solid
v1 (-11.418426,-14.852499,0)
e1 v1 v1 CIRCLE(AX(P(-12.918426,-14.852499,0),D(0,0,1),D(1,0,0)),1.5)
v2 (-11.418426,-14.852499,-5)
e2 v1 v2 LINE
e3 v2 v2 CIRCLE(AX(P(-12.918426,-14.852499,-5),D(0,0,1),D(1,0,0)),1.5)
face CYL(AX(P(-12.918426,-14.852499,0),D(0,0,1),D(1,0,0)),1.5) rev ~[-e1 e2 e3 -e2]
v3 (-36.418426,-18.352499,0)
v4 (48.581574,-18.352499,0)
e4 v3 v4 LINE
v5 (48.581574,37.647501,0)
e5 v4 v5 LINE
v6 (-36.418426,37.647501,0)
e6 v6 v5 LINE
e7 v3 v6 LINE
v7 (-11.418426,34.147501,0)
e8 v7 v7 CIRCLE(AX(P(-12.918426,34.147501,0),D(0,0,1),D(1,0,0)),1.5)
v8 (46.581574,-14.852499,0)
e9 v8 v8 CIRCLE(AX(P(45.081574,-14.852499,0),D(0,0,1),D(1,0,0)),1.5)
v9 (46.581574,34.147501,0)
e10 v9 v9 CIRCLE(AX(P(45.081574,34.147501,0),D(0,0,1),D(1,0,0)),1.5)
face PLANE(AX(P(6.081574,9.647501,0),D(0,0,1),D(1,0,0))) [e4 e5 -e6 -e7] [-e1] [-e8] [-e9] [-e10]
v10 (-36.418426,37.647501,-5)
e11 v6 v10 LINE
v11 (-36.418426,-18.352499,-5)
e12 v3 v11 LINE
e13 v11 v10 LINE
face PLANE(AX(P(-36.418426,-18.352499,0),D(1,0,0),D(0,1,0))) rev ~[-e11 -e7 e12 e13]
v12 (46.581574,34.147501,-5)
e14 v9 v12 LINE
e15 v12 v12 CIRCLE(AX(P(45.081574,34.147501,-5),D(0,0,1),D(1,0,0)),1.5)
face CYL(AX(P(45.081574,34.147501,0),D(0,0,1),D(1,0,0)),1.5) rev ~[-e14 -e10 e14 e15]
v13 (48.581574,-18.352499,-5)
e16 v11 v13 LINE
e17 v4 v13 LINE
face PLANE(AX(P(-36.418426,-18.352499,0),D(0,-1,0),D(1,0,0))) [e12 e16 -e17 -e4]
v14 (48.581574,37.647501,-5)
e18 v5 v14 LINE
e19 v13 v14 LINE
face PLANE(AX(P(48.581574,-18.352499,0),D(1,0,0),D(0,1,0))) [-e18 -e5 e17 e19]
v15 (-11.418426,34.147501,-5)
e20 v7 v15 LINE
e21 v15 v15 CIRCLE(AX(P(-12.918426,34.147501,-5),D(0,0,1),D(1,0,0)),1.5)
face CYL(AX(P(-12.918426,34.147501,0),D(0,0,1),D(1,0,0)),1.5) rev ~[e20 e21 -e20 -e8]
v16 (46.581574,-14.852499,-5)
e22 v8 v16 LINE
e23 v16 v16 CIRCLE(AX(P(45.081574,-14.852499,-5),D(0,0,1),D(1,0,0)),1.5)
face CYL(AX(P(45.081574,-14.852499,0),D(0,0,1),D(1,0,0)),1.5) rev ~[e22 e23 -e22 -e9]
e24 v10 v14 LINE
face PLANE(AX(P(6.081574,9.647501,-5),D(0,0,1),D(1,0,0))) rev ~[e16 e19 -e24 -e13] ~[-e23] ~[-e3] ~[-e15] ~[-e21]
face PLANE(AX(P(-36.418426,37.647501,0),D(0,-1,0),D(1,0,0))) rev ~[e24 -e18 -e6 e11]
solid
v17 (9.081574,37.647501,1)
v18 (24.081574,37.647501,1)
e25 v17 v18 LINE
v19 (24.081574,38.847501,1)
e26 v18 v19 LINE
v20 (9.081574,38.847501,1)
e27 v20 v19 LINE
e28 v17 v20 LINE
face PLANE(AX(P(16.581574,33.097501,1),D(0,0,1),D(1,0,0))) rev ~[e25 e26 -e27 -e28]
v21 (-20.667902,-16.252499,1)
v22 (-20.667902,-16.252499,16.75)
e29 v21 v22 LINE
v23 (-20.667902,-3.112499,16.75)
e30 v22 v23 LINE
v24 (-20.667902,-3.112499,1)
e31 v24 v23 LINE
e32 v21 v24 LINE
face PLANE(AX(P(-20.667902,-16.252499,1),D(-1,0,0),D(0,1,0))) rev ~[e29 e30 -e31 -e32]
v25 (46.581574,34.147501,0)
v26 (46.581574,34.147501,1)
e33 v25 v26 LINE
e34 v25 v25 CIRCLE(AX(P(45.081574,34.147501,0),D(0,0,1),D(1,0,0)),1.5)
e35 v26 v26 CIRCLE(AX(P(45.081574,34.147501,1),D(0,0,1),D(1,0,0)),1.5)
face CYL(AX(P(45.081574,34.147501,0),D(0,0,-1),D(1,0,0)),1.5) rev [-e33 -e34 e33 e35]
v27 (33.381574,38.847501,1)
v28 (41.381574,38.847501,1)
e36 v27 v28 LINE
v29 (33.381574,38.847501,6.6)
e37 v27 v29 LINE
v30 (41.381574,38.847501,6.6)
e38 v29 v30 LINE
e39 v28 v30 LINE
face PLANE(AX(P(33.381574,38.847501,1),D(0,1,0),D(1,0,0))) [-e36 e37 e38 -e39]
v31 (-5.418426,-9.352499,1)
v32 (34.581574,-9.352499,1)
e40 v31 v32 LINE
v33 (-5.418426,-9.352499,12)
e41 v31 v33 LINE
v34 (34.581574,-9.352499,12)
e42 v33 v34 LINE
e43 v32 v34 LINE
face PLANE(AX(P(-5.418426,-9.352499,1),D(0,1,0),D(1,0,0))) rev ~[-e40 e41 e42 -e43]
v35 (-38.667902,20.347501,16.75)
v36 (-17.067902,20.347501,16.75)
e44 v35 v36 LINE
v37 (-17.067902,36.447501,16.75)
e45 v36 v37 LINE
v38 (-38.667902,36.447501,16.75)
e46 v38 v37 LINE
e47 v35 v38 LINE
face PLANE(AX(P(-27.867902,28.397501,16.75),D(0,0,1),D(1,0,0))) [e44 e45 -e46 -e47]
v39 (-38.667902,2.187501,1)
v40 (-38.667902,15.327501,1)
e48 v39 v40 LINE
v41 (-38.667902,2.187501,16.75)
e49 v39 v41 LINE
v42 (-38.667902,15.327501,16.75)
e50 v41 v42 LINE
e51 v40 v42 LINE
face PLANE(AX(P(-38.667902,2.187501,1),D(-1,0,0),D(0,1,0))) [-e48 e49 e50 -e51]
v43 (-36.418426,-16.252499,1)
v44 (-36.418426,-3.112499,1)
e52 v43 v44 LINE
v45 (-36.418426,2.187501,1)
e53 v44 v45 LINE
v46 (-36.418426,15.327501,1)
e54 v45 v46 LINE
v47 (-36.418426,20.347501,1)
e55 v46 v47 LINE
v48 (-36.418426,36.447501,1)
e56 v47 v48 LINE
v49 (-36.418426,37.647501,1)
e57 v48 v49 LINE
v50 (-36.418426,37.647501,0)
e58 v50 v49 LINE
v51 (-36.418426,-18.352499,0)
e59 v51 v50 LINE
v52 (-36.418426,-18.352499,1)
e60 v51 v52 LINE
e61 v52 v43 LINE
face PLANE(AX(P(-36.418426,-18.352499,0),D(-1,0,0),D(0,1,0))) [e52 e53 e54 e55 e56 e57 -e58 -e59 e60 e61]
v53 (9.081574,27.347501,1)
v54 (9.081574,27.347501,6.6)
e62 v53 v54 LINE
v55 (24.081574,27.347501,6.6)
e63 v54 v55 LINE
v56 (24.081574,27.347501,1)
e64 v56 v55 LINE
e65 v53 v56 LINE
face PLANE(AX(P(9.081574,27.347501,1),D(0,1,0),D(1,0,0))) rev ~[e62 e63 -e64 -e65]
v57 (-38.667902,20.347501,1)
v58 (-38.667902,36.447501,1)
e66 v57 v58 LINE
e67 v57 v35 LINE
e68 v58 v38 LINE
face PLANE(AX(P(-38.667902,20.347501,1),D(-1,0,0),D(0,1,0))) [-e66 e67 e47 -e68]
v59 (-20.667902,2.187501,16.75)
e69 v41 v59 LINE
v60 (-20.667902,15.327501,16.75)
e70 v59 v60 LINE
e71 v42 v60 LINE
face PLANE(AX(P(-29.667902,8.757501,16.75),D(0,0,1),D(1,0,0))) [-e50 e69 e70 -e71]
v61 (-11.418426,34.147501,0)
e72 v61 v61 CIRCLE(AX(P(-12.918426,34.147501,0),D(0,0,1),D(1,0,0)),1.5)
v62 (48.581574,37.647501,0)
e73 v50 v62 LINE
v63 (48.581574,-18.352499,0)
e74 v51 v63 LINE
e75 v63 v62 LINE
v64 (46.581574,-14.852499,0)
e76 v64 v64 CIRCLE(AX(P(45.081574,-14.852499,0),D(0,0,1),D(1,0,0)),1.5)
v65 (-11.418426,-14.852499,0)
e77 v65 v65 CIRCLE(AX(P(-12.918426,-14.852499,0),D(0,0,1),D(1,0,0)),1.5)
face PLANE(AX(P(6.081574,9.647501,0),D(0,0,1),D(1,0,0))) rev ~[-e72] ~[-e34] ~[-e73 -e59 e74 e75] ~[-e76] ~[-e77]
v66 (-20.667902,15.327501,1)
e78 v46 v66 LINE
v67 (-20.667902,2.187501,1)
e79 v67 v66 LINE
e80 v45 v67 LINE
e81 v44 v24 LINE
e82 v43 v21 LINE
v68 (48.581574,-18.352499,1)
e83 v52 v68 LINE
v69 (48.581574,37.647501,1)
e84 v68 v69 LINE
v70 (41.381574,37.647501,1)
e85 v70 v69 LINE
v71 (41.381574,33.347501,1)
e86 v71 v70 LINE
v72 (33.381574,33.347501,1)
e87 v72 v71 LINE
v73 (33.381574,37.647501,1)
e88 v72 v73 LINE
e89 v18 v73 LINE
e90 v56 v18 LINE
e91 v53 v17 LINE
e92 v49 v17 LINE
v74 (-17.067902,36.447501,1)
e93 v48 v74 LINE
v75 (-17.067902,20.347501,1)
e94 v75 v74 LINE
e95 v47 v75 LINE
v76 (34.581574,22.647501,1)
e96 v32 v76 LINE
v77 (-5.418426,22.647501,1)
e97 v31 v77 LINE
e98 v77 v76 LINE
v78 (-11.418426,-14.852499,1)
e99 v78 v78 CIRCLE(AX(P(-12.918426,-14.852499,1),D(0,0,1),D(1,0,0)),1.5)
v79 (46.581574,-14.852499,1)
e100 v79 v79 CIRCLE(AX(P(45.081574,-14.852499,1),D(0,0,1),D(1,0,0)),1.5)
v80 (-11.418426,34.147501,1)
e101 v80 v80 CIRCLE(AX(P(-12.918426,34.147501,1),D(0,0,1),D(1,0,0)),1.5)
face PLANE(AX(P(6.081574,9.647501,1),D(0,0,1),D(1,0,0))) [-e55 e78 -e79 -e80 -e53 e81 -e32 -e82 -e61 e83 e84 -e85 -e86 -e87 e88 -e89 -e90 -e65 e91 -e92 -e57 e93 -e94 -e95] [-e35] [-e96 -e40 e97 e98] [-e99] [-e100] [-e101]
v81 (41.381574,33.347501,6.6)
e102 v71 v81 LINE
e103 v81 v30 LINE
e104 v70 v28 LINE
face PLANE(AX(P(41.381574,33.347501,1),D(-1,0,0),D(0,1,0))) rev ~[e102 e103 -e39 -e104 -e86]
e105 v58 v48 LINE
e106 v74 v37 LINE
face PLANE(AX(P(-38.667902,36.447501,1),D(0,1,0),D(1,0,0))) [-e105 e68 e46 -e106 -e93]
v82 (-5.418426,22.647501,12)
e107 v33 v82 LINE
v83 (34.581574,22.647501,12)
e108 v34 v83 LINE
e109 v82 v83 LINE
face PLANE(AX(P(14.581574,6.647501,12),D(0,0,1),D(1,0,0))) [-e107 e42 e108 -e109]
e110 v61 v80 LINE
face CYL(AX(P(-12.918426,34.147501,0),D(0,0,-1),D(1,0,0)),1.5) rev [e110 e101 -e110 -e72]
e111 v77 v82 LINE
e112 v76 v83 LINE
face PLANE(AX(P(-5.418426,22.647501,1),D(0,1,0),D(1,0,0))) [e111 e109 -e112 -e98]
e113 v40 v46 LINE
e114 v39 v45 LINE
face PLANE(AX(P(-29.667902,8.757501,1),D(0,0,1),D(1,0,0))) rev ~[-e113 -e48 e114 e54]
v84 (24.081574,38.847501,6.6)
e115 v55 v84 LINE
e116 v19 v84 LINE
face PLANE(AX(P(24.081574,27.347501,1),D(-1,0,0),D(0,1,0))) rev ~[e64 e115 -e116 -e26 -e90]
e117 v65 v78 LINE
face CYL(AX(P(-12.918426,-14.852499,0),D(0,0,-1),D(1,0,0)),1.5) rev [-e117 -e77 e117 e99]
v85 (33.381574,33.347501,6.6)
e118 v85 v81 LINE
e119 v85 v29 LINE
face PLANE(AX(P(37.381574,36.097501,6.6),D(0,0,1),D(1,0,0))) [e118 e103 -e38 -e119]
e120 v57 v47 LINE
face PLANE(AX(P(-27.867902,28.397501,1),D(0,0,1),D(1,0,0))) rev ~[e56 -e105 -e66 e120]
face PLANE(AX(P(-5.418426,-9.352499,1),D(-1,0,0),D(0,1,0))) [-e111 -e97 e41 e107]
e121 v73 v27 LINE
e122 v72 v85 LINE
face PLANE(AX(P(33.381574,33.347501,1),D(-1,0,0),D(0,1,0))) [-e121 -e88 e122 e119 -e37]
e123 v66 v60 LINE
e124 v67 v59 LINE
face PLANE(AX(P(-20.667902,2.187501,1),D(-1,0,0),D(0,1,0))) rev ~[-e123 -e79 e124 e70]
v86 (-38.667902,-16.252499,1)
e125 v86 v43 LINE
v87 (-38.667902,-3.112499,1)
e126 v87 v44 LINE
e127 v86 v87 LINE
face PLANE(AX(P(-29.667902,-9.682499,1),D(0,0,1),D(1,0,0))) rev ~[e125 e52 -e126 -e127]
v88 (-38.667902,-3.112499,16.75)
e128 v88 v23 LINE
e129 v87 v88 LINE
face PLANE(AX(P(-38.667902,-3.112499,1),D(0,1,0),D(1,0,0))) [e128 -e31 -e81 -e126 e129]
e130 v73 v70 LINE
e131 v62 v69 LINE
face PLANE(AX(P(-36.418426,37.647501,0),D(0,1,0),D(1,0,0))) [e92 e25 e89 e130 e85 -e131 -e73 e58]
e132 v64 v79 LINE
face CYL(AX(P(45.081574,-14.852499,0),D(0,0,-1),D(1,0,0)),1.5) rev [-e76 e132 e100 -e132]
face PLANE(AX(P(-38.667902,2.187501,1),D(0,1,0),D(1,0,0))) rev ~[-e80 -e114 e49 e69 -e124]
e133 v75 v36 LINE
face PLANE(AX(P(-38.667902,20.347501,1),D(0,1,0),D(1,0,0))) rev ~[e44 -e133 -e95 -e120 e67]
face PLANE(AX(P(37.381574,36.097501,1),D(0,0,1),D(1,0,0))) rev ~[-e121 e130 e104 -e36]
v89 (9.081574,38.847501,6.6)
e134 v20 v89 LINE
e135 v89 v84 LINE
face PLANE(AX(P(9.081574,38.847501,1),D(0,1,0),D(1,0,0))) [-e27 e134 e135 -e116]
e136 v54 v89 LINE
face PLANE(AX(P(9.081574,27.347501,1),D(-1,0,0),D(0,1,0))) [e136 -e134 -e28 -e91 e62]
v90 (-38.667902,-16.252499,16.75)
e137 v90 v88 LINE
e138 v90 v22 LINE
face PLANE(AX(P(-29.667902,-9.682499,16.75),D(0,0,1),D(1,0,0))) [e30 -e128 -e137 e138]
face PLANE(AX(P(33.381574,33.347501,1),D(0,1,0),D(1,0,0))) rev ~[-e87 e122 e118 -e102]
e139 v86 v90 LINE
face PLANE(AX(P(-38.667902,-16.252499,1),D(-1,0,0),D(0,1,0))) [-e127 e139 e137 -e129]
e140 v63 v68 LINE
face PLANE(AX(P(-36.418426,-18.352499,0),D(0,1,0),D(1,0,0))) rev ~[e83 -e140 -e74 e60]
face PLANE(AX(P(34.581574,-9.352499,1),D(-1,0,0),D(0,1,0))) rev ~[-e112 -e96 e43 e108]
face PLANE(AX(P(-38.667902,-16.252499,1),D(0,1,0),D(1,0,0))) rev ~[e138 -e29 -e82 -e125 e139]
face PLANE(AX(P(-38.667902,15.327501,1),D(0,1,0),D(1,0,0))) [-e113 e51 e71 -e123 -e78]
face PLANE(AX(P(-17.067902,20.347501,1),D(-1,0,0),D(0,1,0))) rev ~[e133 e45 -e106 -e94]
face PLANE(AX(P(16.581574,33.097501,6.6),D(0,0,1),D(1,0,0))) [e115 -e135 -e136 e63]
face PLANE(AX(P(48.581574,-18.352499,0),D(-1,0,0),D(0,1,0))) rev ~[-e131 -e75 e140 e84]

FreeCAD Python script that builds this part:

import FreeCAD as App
import Part
import Sketcher
from FreeCAD import Vector

doc = App.newDocument("Part")
body = doc.addObject("PartDesign::Body", "Body")

sketch1 = doc.addObject("Sketcher::SketchObject", "Sketch")
body.addObject(sketch1)
sketch1.AttachmentSupport = (doc.XY_Plane, [""])
sketch1.MapMode = "FlatFace"
sketch1.addGeometry([
    Part.LineSegment(Vector(-36.4, 37.6, 0), Vector(-36.4, -18.4, 0)),
    Part.LineSegment(Vector(-36.4, -18.4, 0), Vector(48.6, -18.4, 0)),
    Part.LineSegment(Vector(48.6, -18.4, 0), Vector(48.6, 37.6, 0)),
    Part.LineSegment(Vector(48.6, 37.6, 0), Vector(-36.4, 37.6, 0)),
    Part.Circle(Vector(-12.9, -14.9, 0), Vector(0, 0, 1), 1.5),
    Part.Circle(Vector(45.1, -14.9, 0), Vector(0, 0, 1), 1.5),
    Part.Circle(Vector(-12.9, 34.1, 0), Vector(0, 0, 1), 1.5),
    Part.Circle(Vector(45.1, 34.1, 0), Vector(0, 0, 1), 1.5),
], False)
sketch1.addConstraint([
    Sketcher.Constraint("Coincident", 0, 2, 1, 1),
    Sketcher.Constraint("Coincident", 1, 2, 2, 1),
    Sketcher.Constraint("Coincident", 2, 2, 3, 1),
    Sketcher.Constraint("Coincident", 3, 2, 0, 1),
    Sketcher.Constraint("Vertical", 0),
    Sketcher.Constraint("Horizontal", 1),
    Sketcher.Constraint("Vertical", 2),
    Sketcher.Constraint("Horizontal", 3),
    Sketcher.Constraint("Equal", 4, 5),
    Sketcher.Constraint("Equal", 5, 6),
    Sketcher.Constraint("Equal", 6, 7),
    Sketcher.Constraint("Horizontal", 4, 3, 5, 3),
    Sketcher.Constraint("Horizontal", 6, 3, 7, 3),
    Sketcher.Constraint("Vertical", 4, 3, 6, 3),
    Sketcher.Constraint("Vertical", 5, 3, 7, 3),
    Sketcher.Constraint("Diameter", 4, 3.0),
    Sketcher.Constraint("DistanceX", 1, 1, 1, 2, 85.0),
    Sketcher.Constraint("DistanceY", 0, 2, 0, 1, 56.0),
    Sketcher.Constraint("DistanceX", 4, 3, 5, 3, 58.0),
    Sketcher.Constraint("DistanceY", 4, 3, 6, 3, 49.0),
    Sketcher.Constraint("DistanceX", 0, 2, 4, 3, 23.5),
    Sketcher.Constraint("DistanceY", 0, 2, 4, 3, 3.5),
    Sketcher.Constraint("DistanceY", 4, 3, -1, 1, 14.852499),
    Sketcher.Constraint("DistanceX", 4, 3, -1, 1, 12.918426),
])
pad1 = doc.addObject("PartDesign::Pad", "Pad")
body.addObject(pad1)
pad1.Profile = sketch1
pad1.Length = 1

sketch2 = doc.addObject("Sketcher::SketchObject", "Sketch001")
body.addObject(sketch2)
sketch2.AttachmentSupport = (doc.XY_Plane, [""])
sketch2.MapMode = "FlatFace"
sketch2.AttachmentOffset = App.Placement(Vector(0, 0, 1), App.Rotation())
sketch2.addGeometry([
    Part.LineSegment(Vector(-5, 23, 0), Vector(-5, -9, 0)),
    Part.LineSegment(Vector(-5, -9, 0), Vector(35, -9, 0)),
    Part.LineSegment(Vector(35, -9, 0), Vector(35, 23, 0)),
    Part.LineSegment(Vector(35, 23, 0), Vector(-5, 23, 0)),
], False)
sketch2.addConstraint([
    Sketcher.Constraint("Coincident", 0, 2, 1, 1),
    Sketcher.Constraint("Coincident", 1, 2, 2, 1),
    Sketcher.Constraint("Coincident", 2, 2, 3, 1),
    Sketcher.Constraint("Coincident", 3, 2, 0, 1),
    Sketcher.Constraint("Vertical", 0),
    Sketcher.Constraint("Horizontal", 1),
    Sketcher.Constraint("Vertical", 2),
    Sketcher.Constraint("Horizontal", 3),
    Sketcher.Constraint("DistanceX", 1, 1, 1, 2, 40.0),
    Sketcher.Constraint("DistanceY", 0, 2, 0, 1, 32.0),
    Sketcher.Constraint("DistanceY", 0, 2, -1, 1, 9.352499),
    Sketcher.Constraint("DistanceX", 0, 2, -1, 1, 5.418426),
])
pad2 = doc.addObject("PartDesign::Pad", "Pad001")
body.addObject(pad2)
pad2.Profile = sketch2
pad2.Length = 11

sketch3 = doc.addObject("Sketcher::SketchObject", "Sketch002")
body.addObject(sketch3)
sketch3.AttachmentSupport = (doc.XY_Plane, [""])
sketch3.MapMode = "FlatFace"
sketch3.AttachmentOffset = App.Placement(Vector(0, 0, 1), App.Rotation())
sketch3.addGeometry([
    Part.LineSegment(Vector(-39, 15, 0), Vector(-39, 2, 0)),
    Part.LineSegment(Vector(-39, 2, 0), Vector(-21, 2, 0)),
    Part.LineSegment(Vector(-21, 2, 0), Vector(-21, 15, 0)),
    Part.LineSegment(Vector(-21, 15, 0), Vector(-39, 15, 0)),
    Part.LineSegment(Vector(-39, -3, 0), Vector(-39, -16, 0)),
    Part.LineSegment(Vector(-39, -16, 0), Vector(-21, -16, 0)),
    Part.LineSegment(Vector(-21, -16, 0), Vector(-21, -3, 0)),
    Part.LineSegment(Vector(-21, -3, 0), Vector(-39, -3, 0)),
    Part.LineSegment(Vector(-39, 36, 0), Vector(-39, 20, 0)),
    Part.LineSegment(Vector(-39, 20, 0), Vector(-17, 20, 0)),
    Part.LineSegment(Vector(-17, 20, 0), Vector(-17, 36, 0)),
    Part.LineSegment(Vector(-17, 36, 0), Vector(-39, 36, 0)),
], False)
sketch3.addConstraint([
    Sketcher.Constraint("Coincident", 0, 2, 1, 1),
    Sketcher.Constraint("Coincident", 1, 2, 2, 1),
    Sketcher.Constraint("Coincident", 2, 2, 3, 1),
    Sketcher.Constraint("Coincident", 3, 2, 0, 1),
    Sketcher.Constraint("Coincident", 4, 2, 5, 1),
    Sketcher.Constraint("Coincident", 5, 2, 6, 1),
    Sketcher.Constraint("Coincident", 6, 2, 7, 1),
    Sketcher.Constraint("Coincident", 7, 2, 4, 1),
    Sketcher.Constraint("Coincident", 8, 2, 9, 1),
    Sketcher.Constraint("Coincident", 9, 2, 10, 1),
    Sketcher.Constraint("Coincident", 10, 2, 11, 1),
    Sketcher.Constraint("Coincident", 11, 2, 8, 1),
    Sketcher.Constraint("Vertical", 0),
    Sketcher.Constraint("Horizontal", 1),
    Sketcher.Constraint("Vertical", 2),
    Sketcher.Constraint("Horizontal", 3),
    Sketcher.Constraint("Vertical", 4),
    Sketcher.Constraint("Horizontal", 5),
    Sketcher.Constraint("Vertical", 6),
    Sketcher.Constraint("Horizontal", 7),
    Sketcher.Constraint("Vertical", 8),
    Sketcher.Constraint("Horizontal", 9),
    Sketcher.Constraint("Vertical", 10),
    Sketcher.Constraint("Horizontal", 11),
    Sketcher.Constraint("Vertical", 3, 2, 4, 2),
    Sketcher.Constraint("Vertical", 2, 2, 5, 2),
    Sketcher.Constraint("Vertical", 7, 2, 8, 2),
    Sketcher.Constraint("Equal", 2, 4),
    Sketcher.Constraint("DistanceX", 1, 1, 1, 2, 18.0),
    Sketcher.Constraint("DistanceX", 9, 1, 9, 2, 21.6),
    Sketcher.Constraint("DistanceY", 8, 2, 8, 1, 16.1),
    Sketcher.Constraint("DistanceY", 0, 2, 0, 1, 13.14),
    Sketcher.Constraint("DistanceY", 6, 2, 1, 2, 5.3),
    Sketcher.Constraint("DistanceY", 3, 2, 8, 2, 5.02),
    Sketcher.Constraint("DistanceY", -1, 1, 0, 2, 2.187501),
    Sketcher.Constraint("DistanceX", 0, 2, -1, 1, 38.667902),
])
pad3 = doc.addObject("PartDesign::Pad", "Pad002")
body.addObject(pad3)
pad3.Profile = sketch3
pad3.Length = 15.75

sketch4 = doc.addObject("Sketcher::SketchObject", "Sketch003")
body.addObject(sketch4)
sketch4.AttachmentSupport = (doc.XY_Plane, [""])
sketch4.MapMode = "FlatFace"
sketch4.AttachmentOffset = App.Placement(Vector(0, 0, 1), App.Rotation())
sketch4.addGeometry([
    Part.LineSegment(Vector(9, 39, 0), Vector(9, 27, 0)),
    Part.LineSegment(Vector(9, 27, 0), Vector(24, 27, 0)),
    Part.LineSegment(Vector(24, 27, 0), Vector(24, 39, 0)),
    Part.LineSegment(Vector(24, 39, 0), Vector(9, 39, 0)),
    Part.LineSegment(Vector(33, 39, 0), Vector(33, 33, 0)),
    Part.LineSegment(Vector(33, 33, 0), Vector(41, 33, 0)),
    Part.LineSegment(Vector(41, 33, 0), Vector(41, 39, 0)),
    Part.LineSegment(Vector(41, 39, 0), Vector(33, 39, 0)),
], False)
sketch4.addConstraint([
    Sketcher.Constraint("Coincident", 0, 2, 1, 1),
    Sketcher.Constraint("Coincident", 1, 2, 2, 1),
    Sketcher.Constraint("Coincident", 2, 2, 3, 1),
    Sketcher.Constraint("Coincident", 3, 2, 0, 1),
    Sketcher.Constraint("Coincident", 4, 2, 5, 1),
    Sketcher.Constraint("Coincident", 5, 2, 6, 1),
    Sketcher.Constraint("Coincident", 6, 2, 7, 1),
    Sketcher.Constraint("Coincident", 7, 2, 4, 1),
    Sketcher.Constraint("Vertical", 0),
    Sketcher.Constraint("Horizontal", 1),
    Sketcher.Constraint("Vertical", 2),
    Sketcher.Constraint("Horizontal", 3),
    Sketcher.Constraint("Vertical", 4),
    Sketcher.Constraint("Horizontal", 5),
    Sketcher.Constraint("Vertical", 6),
    Sketcher.Constraint("Horizontal", 7),
    Sketcher.Constraint("Horizontal", 3, 2, 6, 2),
    Sketcher.Constraint("DistanceX", 1, 1, 1, 2, 15.0),
    Sketcher.Constraint("DistanceX", 5, 1, 5, 2, 8.0),
    Sketcher.Constraint("DistanceY", 0, 2, 0, 1, 11.5),
    Sketcher.Constraint("DistanceY", 4, 2, 4, 1, 5.5),
    Sketcher.Constraint("DistanceX", 2, 2, 4, 2, 9.3),
    Sketcher.Constraint("DistanceY", -1, 1, 0, 2, 27.347501),
    Sketcher.Constraint("DistanceX", -1, 1, 0, 2, 9.081574),
])
pad4 = doc.addObject("PartDesign::Pad", "Pad003")
body.addObject(pad4)
pad4.Profile = sketch4
pad4.Length = 5.6
body2 = doc.addObject("PartDesign::Body", "Body001")

sketch5 = doc.addObject("Sketcher::SketchObject", "Sketch004")
body2.addObject(sketch5)
sketch5.AttachmentSupport = (doc.getObject("XY_Plane001"), [""])
sketch5.MapMode = "FlatFace"
sketch5.addGeometry([
    Part.LineSegment(Vector(-36.4, 37.6, 0), Vector(-36.4, -18.4, 0)),
    Part.LineSegment(Vector(-36.4, -18.4, 0), Vector(48.6, -18.4, 0)),
    Part.LineSegment(Vector(48.6, -18.4, 0), Vector(48.6, 37.6, 0)),
    Part.LineSegment(Vector(48.6, 37.6, 0), Vector(-36.4, 37.6, 0)),
    Part.Circle(Vector(-12.9, -14.9, 0), Vector(0, 0, 1), 1.5),
    Part.Circle(Vector(45.1, -14.9, 0), Vector(0, 0, 1), 1.5),
    Part.Circle(Vector(-12.9, 34.1, 0), Vector(0, 0, 1), 1.5),
    Part.Circle(Vector(45.1, 34.1, 0), Vector(0, 0, 1), 1.5),
], False)
sketch5.addConstraint([
    Sketcher.Constraint("Coincident", 0, 2, 1, 1),
    Sketcher.Constraint("Coincident", 1, 2, 2, 1),
    Sketcher.Constraint("Coincident", 2, 2, 3, 1),
    Sketcher.Constraint("Coincident", 3, 2, 0, 1),
    Sketcher.Constraint("Vertical", 0),
    Sketcher.Constraint("Horizontal", 1),
    Sketcher.Constraint("Vertical", 2),
    Sketcher.Constraint("Horizontal", 3),
    Sketcher.Constraint("Equal", 4, 5),
    Sketcher.Constraint("Equal", 5, 6),
    Sketcher.Constraint("Equal", 6, 7),
    Sketcher.Constraint("Horizontal", 4, 3, 5, 3),
    Sketcher.Constraint("Horizontal", 6, 3, 7, 3),
    Sketcher.Constraint("Vertical", 4, 3, 6, 3),
    Sketcher.Constraint("Vertical", 5, 3, 7, 3),
    Sketcher.Constraint("Diameter", 4, 3.0),
    Sketcher.Constraint("DistanceX", 1, 1, 1, 2, 85.0),
    Sketcher.Constraint("DistanceY", 0, 2, 0, 1, 56.0),
    Sketcher.Constraint("DistanceX", 4, 3, 5, 3, 58.0),
    Sketcher.Constraint("DistanceY", 4, 3, 6, 3, 49.0),
    Sketcher.Constraint("DistanceX", 0, 2, 4, 3, 23.5),
    Sketcher.Constraint("DistanceY", 0, 2, 4, 3, 3.5),
    Sketcher.Constraint("DistanceY", 4, 3, -1, 1, 14.852499),
    Sketcher.Constraint("DistanceX", 4, 3, -1, 1, 12.918426),
])
pad5 = doc.addObject("PartDesign::Pad", "Pad004")
body2.addObject(pad5)
pad5.Profile = sketch5
pad5.Length = 5
pad5.Reversed = True

doc.recompute()
